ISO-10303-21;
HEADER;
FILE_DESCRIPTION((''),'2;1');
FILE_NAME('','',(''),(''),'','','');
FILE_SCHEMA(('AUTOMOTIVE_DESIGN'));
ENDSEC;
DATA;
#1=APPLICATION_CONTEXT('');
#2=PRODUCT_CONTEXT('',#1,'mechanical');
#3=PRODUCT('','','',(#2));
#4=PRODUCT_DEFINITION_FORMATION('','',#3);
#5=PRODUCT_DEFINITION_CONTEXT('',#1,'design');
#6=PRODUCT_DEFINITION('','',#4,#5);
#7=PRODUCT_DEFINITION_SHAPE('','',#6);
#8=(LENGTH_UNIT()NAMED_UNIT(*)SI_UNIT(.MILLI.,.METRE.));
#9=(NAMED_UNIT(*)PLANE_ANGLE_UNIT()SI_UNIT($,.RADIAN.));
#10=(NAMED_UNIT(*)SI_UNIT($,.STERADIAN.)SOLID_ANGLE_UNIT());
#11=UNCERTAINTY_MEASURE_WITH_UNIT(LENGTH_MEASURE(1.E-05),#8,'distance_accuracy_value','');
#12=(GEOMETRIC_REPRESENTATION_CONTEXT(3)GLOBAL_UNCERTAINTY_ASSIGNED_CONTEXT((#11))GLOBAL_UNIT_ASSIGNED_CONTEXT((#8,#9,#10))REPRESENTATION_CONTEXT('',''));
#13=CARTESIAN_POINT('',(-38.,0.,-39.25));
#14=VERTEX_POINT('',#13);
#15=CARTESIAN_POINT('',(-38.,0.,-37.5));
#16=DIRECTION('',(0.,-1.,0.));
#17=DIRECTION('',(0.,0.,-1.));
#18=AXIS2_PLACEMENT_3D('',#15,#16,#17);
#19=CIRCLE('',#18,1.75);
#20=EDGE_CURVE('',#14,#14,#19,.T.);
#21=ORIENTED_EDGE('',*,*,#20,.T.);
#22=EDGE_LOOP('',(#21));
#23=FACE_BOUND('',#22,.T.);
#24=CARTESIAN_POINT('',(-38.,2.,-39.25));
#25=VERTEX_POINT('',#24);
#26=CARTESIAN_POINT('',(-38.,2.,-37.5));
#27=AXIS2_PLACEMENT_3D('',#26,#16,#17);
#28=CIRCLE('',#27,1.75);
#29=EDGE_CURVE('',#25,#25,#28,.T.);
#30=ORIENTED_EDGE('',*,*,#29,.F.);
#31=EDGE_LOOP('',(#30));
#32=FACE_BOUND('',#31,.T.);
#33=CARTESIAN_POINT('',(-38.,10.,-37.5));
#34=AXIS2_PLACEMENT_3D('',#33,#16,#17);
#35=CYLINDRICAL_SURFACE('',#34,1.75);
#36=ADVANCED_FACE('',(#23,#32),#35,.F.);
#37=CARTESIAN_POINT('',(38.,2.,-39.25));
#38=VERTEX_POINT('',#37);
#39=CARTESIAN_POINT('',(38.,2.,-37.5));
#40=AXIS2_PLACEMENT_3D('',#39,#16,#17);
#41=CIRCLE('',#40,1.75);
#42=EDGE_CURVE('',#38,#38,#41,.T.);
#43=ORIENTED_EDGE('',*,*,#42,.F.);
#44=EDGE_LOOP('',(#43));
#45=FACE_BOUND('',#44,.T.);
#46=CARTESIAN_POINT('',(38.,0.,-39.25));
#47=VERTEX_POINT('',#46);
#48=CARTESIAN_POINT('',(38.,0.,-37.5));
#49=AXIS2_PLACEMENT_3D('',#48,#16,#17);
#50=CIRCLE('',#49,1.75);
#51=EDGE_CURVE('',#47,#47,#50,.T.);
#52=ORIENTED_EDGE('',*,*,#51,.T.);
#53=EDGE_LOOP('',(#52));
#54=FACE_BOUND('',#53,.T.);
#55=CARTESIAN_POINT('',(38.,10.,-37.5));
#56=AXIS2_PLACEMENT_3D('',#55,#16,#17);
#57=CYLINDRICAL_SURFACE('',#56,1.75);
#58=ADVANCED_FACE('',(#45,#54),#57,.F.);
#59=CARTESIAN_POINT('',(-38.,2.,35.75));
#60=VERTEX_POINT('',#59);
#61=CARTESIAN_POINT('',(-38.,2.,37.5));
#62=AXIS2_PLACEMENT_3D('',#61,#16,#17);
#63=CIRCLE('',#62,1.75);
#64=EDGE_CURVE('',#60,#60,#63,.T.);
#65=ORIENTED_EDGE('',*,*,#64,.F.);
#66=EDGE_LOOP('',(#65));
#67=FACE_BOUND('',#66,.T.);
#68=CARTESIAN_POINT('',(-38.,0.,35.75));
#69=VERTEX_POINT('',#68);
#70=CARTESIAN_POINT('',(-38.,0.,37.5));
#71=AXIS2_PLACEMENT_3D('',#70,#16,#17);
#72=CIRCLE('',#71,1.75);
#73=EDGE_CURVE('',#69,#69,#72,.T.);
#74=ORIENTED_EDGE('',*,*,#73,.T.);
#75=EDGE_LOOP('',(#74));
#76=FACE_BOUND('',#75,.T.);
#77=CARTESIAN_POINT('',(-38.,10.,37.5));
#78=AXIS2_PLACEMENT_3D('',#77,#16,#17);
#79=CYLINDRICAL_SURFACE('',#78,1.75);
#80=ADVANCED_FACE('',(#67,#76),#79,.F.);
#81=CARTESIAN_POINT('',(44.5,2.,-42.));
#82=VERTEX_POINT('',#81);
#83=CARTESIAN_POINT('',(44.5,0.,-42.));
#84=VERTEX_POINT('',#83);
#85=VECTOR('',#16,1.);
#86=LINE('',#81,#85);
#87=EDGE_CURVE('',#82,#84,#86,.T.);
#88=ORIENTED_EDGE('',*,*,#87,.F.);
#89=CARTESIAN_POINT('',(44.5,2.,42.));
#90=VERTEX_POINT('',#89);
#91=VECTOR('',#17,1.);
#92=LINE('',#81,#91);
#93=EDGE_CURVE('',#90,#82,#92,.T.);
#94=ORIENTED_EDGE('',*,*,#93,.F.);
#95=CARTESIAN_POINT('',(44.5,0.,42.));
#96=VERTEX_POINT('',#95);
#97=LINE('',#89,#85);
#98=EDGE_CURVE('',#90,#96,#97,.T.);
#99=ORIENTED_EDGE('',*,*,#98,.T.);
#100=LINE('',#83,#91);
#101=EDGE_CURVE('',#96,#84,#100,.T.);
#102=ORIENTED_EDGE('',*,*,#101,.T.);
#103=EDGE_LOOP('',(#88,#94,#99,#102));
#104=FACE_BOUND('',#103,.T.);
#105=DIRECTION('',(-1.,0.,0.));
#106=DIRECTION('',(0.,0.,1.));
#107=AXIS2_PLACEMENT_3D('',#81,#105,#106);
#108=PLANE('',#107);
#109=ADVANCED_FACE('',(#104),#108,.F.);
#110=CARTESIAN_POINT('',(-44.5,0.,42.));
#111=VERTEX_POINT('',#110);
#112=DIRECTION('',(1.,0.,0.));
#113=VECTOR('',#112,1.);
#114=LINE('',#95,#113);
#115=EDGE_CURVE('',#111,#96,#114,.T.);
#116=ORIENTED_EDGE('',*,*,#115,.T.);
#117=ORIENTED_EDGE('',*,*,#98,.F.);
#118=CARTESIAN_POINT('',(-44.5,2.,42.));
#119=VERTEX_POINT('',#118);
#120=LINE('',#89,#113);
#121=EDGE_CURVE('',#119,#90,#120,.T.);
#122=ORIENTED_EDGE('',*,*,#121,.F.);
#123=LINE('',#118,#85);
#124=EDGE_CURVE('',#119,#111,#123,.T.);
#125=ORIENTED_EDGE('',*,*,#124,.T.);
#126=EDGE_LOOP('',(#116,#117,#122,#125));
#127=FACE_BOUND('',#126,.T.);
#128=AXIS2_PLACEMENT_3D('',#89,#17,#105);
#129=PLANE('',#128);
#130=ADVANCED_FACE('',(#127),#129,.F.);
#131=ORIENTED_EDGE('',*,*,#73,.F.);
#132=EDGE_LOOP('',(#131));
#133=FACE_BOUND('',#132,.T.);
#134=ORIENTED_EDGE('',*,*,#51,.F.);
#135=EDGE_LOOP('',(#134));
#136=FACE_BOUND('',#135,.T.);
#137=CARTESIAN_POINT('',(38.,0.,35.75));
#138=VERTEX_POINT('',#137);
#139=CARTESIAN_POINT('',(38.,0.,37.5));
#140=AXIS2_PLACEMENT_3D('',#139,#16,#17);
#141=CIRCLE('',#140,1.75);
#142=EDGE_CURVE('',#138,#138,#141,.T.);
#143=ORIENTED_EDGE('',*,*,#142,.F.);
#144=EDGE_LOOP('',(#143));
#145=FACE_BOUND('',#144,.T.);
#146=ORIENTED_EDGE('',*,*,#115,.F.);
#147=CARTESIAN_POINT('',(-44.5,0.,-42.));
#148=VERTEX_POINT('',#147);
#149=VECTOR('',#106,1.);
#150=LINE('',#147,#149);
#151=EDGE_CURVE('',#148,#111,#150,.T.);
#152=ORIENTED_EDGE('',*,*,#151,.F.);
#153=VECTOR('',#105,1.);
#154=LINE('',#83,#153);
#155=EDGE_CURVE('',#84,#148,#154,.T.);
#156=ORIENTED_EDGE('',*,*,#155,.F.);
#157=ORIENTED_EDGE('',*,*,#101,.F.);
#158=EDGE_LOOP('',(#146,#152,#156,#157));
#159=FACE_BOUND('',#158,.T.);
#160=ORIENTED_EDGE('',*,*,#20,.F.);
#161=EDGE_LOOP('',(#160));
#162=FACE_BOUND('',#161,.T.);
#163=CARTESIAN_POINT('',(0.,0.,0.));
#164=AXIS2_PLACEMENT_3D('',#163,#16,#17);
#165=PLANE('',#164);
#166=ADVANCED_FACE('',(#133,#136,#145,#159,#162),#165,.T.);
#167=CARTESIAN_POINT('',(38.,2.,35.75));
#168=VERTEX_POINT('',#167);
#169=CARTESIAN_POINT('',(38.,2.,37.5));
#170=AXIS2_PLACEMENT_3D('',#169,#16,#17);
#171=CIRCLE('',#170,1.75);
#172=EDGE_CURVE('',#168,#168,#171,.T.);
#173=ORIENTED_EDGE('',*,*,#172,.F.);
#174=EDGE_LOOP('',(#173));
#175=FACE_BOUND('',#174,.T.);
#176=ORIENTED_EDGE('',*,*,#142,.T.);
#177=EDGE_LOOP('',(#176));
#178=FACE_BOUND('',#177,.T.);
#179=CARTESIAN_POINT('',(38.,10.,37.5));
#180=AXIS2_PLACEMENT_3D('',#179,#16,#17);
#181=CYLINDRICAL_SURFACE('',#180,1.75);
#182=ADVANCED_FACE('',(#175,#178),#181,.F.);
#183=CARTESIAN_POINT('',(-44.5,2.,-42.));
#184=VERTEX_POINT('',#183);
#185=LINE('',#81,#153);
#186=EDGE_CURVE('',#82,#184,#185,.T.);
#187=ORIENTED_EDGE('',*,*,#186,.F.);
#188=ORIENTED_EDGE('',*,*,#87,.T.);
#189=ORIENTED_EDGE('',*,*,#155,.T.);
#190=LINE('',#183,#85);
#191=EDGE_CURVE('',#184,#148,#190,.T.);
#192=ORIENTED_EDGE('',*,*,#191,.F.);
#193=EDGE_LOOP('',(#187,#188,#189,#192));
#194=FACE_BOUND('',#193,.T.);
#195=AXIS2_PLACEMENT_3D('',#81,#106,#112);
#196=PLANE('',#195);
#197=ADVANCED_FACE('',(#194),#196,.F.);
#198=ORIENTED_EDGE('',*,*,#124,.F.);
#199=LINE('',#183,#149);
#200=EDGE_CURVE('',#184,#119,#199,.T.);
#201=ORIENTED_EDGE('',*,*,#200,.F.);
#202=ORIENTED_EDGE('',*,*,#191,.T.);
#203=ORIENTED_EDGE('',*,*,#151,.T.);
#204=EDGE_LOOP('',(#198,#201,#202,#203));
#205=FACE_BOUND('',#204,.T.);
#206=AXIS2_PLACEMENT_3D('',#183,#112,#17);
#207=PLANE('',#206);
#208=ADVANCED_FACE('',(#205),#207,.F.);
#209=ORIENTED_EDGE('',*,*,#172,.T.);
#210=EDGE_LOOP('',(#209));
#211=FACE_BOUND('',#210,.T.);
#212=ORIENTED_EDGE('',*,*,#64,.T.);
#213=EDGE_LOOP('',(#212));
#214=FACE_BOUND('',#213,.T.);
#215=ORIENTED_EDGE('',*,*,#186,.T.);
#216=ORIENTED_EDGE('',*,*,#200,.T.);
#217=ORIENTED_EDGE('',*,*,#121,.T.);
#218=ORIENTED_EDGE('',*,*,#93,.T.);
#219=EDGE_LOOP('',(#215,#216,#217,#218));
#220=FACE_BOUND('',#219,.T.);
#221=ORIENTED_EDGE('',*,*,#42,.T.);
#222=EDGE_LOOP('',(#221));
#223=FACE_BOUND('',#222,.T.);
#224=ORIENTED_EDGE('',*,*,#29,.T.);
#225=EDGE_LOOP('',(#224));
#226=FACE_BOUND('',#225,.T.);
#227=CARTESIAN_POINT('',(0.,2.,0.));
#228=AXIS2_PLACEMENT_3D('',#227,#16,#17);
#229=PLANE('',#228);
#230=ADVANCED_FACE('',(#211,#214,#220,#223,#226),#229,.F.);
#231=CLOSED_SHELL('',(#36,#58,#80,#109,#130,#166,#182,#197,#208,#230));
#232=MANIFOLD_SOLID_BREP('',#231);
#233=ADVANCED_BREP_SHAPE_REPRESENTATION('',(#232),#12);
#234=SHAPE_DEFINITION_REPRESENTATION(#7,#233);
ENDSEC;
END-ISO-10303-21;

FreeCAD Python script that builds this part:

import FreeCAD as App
import Part
import Sketcher
from FreeCAD import Vector
Q = App.Units.Quantity

doc = App.newDocument("Part")
body = doc.addObject("PartDesign::Body", "Body")

sketch1 = body.newObject("Sketcher::SketchObject", "Sketch")
sketch1.AttachmentSupport = (doc.getObject("XZ_Plane"), [""])
sketch1.MapMode = "FlatFace"
sketch1.addGeometry([
    Part.LineSegment(Vector(-44, -42, 0), Vector(-44, 42, 0)),
    Part.LineSegment(Vector(-44, 42, 0), Vector(44, 42, 0)),
    Part.LineSegment(Vector(44, 42, 0), Vector(44, -42, 0)),
    Part.LineSegment(Vector(44, -42, 0), Vector(-44, -42, 0)),
], False)
sketch1.addConstraint([
    Sketcher.Constraint("Coincident", 0, 2, 1, 1),
    Sketcher.Constraint("Coincident", 1, 2, 2, 1),
    Sketcher.Constraint("Coincident", 2, 2, 3, 1),
    Sketcher.Constraint("Coincident", 3, 2, 0, 1),
    Sketcher.Constraint("Vertical", 0),
    Sketcher.Constraint("Horizontal", 1),
    Sketcher.Constraint("Vertical", 2),
    Sketcher.Constraint("Horizontal", 3),
    Sketcher.Constraint("Symmetric", 0, 2, 2, 2, -1, 1),
    Sketcher.Constraint("DistanceX", 1, 1, 1, 2, Q("89 mm")),
    Sketcher.Constraint("DistanceY", 0, 1, 0, 2, Q("84 mm")),
])
pad1 = body.newObject("PartDesign::Pad", "Pad")
pad1.Profile = sketch1
pad1.Length = 2
pad1.Reversed = True

sketch2 = body.newObject("Sketcher::SketchObject", "Sketch001")
sketch2.AttachmentSupport = (doc.getObject("XZ_Plane"), [""])
sketch2.MapMode = "FlatFace"
sketch2.addGeometry([
    Part.Circle(Vector(-38, 37.5, 0), Vector(0, 0, 1), 1.8),
    Part.Circle(Vector(-38, -37.5, 0), Vector(0, 0, 1), 1.8),
    Part.Circle(Vector(38, -37.5, 0), Vector(0, 0, 1), 1.8),
    Part.Circle(Vector(38, 37.5, 0), Vector(0, 0, 1), 1.8),
], False)
sketch2.addConstraint([
    Sketcher.Constraint("Equal", 0, 1),
    Sketcher.Constraint("Equal", 1, 2),
    Sketcher.Constraint("Equal", 2, 3),
    Sketcher.Constraint("Symmetric", 0, 3, 2, 3, -1, 1),
    Sketcher.Constraint("Symmetric", 1, 3, 3, 3, -1, 1),
    Sketcher.Constraint("Symmetric", 1, 3, 2, 3, -2),
    Sketcher.Constraint("Diameter", 0, Q("3.5 mm")),
    Sketcher.Constraint("DistanceX", 0, 3, -1, 1, Q("38 mm")),
    Sketcher.Constraint("DistanceY", 1, 3, 0, 3, Q("75 mm")),
])
pocket1 = body.newObject("PartDesign::Pocket", "Pocket")
pocket1.Profile = sketch2
pocket1.Length = 10

doc.recompute()
